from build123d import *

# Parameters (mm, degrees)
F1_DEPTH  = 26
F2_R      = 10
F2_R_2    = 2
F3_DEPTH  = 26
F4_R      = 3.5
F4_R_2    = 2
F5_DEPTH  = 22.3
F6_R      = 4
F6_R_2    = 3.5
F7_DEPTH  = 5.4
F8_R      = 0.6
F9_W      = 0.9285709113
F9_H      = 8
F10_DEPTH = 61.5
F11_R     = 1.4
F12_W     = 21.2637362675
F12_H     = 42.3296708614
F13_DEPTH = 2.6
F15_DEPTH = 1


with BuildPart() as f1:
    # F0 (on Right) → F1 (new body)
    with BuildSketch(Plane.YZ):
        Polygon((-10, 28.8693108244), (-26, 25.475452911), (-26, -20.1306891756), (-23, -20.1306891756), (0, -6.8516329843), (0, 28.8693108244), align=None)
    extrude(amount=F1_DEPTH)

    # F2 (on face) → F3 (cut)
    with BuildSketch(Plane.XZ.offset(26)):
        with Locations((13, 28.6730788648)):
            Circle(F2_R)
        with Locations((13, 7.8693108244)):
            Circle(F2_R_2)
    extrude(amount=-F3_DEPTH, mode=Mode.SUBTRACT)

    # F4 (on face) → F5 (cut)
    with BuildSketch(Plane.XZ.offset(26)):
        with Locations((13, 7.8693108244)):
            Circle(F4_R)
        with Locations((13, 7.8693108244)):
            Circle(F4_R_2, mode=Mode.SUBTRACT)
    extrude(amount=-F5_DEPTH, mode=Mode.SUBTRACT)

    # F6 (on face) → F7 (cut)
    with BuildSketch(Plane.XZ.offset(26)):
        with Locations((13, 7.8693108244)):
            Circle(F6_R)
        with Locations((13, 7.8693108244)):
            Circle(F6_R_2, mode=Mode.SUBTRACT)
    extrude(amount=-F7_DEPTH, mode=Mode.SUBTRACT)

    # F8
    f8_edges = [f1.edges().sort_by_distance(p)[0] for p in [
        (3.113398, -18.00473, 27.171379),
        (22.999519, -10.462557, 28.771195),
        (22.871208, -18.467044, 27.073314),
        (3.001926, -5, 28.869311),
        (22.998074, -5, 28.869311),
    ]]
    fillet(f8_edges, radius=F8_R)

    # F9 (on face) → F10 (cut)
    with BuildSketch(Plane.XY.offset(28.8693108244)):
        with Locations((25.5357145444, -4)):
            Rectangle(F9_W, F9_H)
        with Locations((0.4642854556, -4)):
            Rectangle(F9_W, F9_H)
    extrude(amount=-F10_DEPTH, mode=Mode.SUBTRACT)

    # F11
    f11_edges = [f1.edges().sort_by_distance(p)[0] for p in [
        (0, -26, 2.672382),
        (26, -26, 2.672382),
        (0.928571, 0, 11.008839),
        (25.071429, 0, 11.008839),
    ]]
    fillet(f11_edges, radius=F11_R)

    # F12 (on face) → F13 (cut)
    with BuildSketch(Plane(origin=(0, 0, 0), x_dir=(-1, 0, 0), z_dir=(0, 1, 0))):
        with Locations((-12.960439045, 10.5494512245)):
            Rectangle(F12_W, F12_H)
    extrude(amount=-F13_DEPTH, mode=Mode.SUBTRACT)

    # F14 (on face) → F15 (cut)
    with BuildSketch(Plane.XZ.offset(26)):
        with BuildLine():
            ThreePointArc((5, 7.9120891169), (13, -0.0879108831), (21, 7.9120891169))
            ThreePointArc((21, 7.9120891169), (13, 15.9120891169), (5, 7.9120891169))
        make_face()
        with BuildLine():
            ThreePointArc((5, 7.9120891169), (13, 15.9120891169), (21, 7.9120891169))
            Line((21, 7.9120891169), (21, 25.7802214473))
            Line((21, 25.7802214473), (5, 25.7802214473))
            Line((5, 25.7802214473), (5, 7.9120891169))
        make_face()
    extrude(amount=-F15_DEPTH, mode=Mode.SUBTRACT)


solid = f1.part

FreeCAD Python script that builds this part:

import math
import FreeCAD as App
import Part
import Sketcher
Q = App.Units.Quantity


def edges_at(feature, points):
    """Names of the edges that pass closest to the given points."""
    edges = feature.Shape.Edges
    near = lambda p: min(range(len(edges)), key=lambda i: edges[i].distToShape(Part.Vertex(*p))[0])
    return sorted({f"Edge{near(p) + 1}" for p in points})


def add_polygon(sketch, points):
    """Adds a closed chain of lines whose ends are joined by coincident constraints."""
    first, n = sketch.GeometryCount, len(points)
    for a, b in zip(points, points[1:] + points[:1]):
        sketch.addGeometry(Part.LineSegment(App.Vector(*a, 0), App.Vector(*b, 0)), False)
    for i in range(n):
        sketch.addConstraint(Sketcher.Constraint("Coincident", first + i, 2, first + (i + 1) % n, 1))

doc = App.newDocument("Part")
body = doc.addObject("PartDesign::Body", "Body")

# Sketch on YZ plane
sketch1 = body.newObject("Sketcher::SketchObject", "Sketch")
sketch1.AttachmentSupport = (doc.getObject("YZ_Plane"), [""])
sketch1.MapMode = "FlatFace"
add_polygon(sketch1, [(-10, 28.9), (-26, 25.5), (-26, -20.1), (-23, -20.1), (0, -6.9), (0, 28.9)])  # lines 0-5
sketch1.addConstraint([
    Sketcher.Constraint("Vertical", 1),
    Sketcher.Constraint("Horizontal", 2),
    Sketcher.Constraint("Vertical", 4),
    Sketcher.Constraint("Horizontal", 5),
    Sketcher.Constraint("PointOnObject", 3, 2, -2),
    Sketcher.Constraint("DistanceX", 2, 1, 2, 2, 3.0),
    Sketcher.Constraint("DistanceX", 5, 2, 5, 1, 10.0),
    Sketcher.Constraint("Angle", 3, Q("30 deg")),
    Sketcher.Constraint("DistanceX", 0, 2, -1, 1, 26.0),
    Sketcher.Constraint("DistanceY", 2, 2, 4, 2, 49.0),
    Sketcher.Constraint("DistanceY", 1, 2, 1, 1, 45.606142),
    Sketcher.Constraint("DistanceY", 1, 2, -1, 1, 20.130689),
])
pad1 = body.newObject("PartDesign::Pad", "Pad")
pad1.Profile = sketch1
pad1.Length = 26

# Sketch on XZ plane
sketch2 = body.newObject("Sketcher::SketchObject", "Sketch001")
sketch2.AttachmentSupport = (doc.getObject("XZ_Plane"), [""])
sketch2.MapMode = "FlatFace"
sketch2.AttachmentOffset = App.Placement(App.Vector(0, 0, 26), App.Rotation())
sketch2.addGeometry([
    Part.Circle(App.Vector(13, 28.7, 0), App.Vector(0, 0, 1), 10),
    Part.Circle(App.Vector(13, 7.9, 0), App.Vector(0, 0, 1), 2),
], False)
sketch2.addConstraint([
    Sketcher.Constraint("Vertical", 0, 3, 1, 3),
    Sketcher.Constraint("Diameter", 0, 20.0),
    Sketcher.Constraint("Diameter", 1, 4.0),
    Sketcher.Constraint("DistanceX", -1, 1, 0, 3, 13.0),
    Sketcher.Constraint("DistanceY", -1, 1, 0, 3, 28.673079),
    Sketcher.Constraint("DistanceY", -1, 1, 1, 3, 7.869311),
])
pocket1 = body.newObject("PartDesign::Pocket", "Pocket")
pocket1.Profile = sketch2
pocket1.Length = 26

# Sketch on XZ plane
sketch3 = body.newObject("Sketcher::SketchObject", "Sketch002")
sketch3.AttachmentSupport = (doc.getObject("XZ_Plane"), [""])
sketch3.MapMode = "FlatFace"
sketch3.AttachmentOffset = App.Placement(App.Vector(0, 0, 26), App.Rotation())
sketch3.addGeometry([
    Part.Circle(App.Vector(13, 7.9, 0), App.Vector(0, 0, 1), 3.5),
    Part.Circle(App.Vector(13, 7.9, 0), App.Vector(0, 0, 1), 2),
], False)
sketch3.addConstraint([
    Sketcher.Constraint("Coincident", 1, 3, 0, 3),
    Sketcher.Constraint("Diameter", 0, 7.0),
    Sketcher.Constraint("Diameter", 1, 4.0),
    Sketcher.Constraint("DistanceX", -1, 1, 0, 3, 13.0),
    Sketcher.Constraint("DistanceY", -1, 1, 0, 3, 7.869311),
])
pocket2 = body.newObject("PartDesign::Pocket", "Pocket001")
pocket2.Profile = sketch3
pocket2.Length = 22.3

# Sketch on XZ plane
sketch4 = body.newObject("Sketcher::SketchObject", "Sketch003")
sketch4.AttachmentSupport = (doc.getObject("XZ_Plane"), [""])
sketch4.MapMode = "FlatFace"
sketch4.AttachmentOffset = App.Placement(App.Vector(0, 0, 26), App.Rotation())
sketch4.addGeometry([
    Part.Circle(App.Vector(13, 7.9, 0), App.Vector(0, 0, 1), 4),
    Part.Circle(App.Vector(13, 7.9, 0), App.Vector(0, 0, 1), 3.5),
], False)
sketch4.addConstraint([
    Sketcher.Constraint("Coincident", 1, 3, 0, 3),
    Sketcher.Constraint("Diameter", 0, 8.0),
    Sketcher.Constraint("Diameter", 1, 7.0),
    Sketcher.Constraint("DistanceX", -1, 1, 0, 3, 13.0),
    Sketcher.Constraint("DistanceY", -1, 1, 0, 3, 7.869311),
])
pocket3 = body.newObject("PartDesign::Pocket", "Pocket002")
pocket3.Profile = sketch4
pocket3.Length = 5.4
doc.recompute()

fillet = body.newObject("PartDesign::Fillet", "Fillet")
fillet.Base = (pocket3, edges_at(pocket3, [
    (3.113, -18.005, 27.171),
    (23, -10.463, 28.771),
    (22.871, -18.467, 27.073),
    (3.002, -5, 28.869),
    (22.998, -5, 28.869),
]))
fillet.Radius = 0.6

# Sketch on XY plane
sketch5 = body.newObject("Sketcher::SketchObject", "Sketch004")
sketch5.AttachmentSupport = (doc.getObject("XY_Plane"), [""])
sketch5.MapMode = "FlatFace"
sketch5.AttachmentOffset = App.Placement(App.Vector(0, 0, 28.869311), App.Rotation())
add_polygon(sketch5, [(25.1, 0), (25.1, -8), (26, -8), (26, 0)])  # lines 0-3
add_polygon(sketch5, [(0, 0), (0, -8), (0.9, -8), (0.9, 0)])  # lines 4-7
sketch5.addConstraint([
    Sketcher.Constraint("Vertical", 0),
    Sketcher.Constraint("Horizontal", 1),
    Sketcher.Constraint("Vertical", 2),
    Sketcher.Constraint("Horizontal", 3),
    Sketcher.Constraint("Vertical", 4),
    Sketcher.Constraint("Horizontal", 5),
    Sketcher.Constraint("Vertical", 6),
    Sketcher.Constraint("Horizontal", 7),
    Sketcher.Constraint("Coincident", 7, 2, -1, 1),
    Sketcher.Constraint("PointOnObject", 2, 2, -1),
    Sketcher.Constraint("Horizontal", 1, 2, 4, 2),
    Sketcher.Constraint("Equal", 3, 5),
    Sketcher.Constraint("DistanceY", 0, 2, 0, 1, 8.0),
    Sketcher.Constraint("DistanceX", -1, 1, 1, 2, 26.0),
    Sketcher.Constraint("DistanceX", 1, 1, 1, 2, 0.928571),
])
pocket4 = body.newObject("PartDesign::Pocket", "Pocket003")
pocket4.Profile = sketch5
pocket4.Length = 61.5
doc.recompute()

fillet2 = body.newObject("PartDesign::Fillet", "Fillet001")
fillet2.Base = (pocket4, edges_at(pocket4, [
    (0, -26, 2.672),
    (26, -26, 2.672),
    (0.929, 0, 11.009),
    (25.071, 0, 11.009),
]))
fillet2.Radius = 1.4

# Sketch on XZ plane
sketch6 = body.newObject("Sketcher::SketchObject", "Sketch005")
sketch6.AttachmentSupport = (doc.getObject("XZ_Plane"), [""])
sketch6.MapMode = "FlatFace"
add_polygon(sketch6, [(24, 32), (24, -11), (2, -11), (2, 32)])  # lines 0-3
sketch6.addConstraint([
    Sketcher.Constraint("Vertical", 0),
    Sketcher.Constraint("Horizontal", 1),
    Sketcher.Constraint("Vertical", 2),
    Sketcher.Constraint("Horizontal", 3),
    Sketcher.Constraint("DistanceY", 0, 2, 0, 1, 42.329671),
    Sketcher.Constraint("DistanceX", 1, 2, 1, 1, 21.263736),
    Sketcher.Constraint("DistanceX", -1, 1, 1, 2, 2.328571),
    Sketcher.Constraint("DistanceY", 0, 2, -1, 1, 10.615384),
])
pocket5 = body.newObject("PartDesign::Pocket", "Pocket004")
pocket5.Profile = sketch6
pocket5.Length = 2.6
pocket5.Reversed = True

# Sketch on XZ plane
sketch7 = body.newObject("Sketcher::SketchObject", "Sketch006")
sketch7.AttachmentSupport = (doc.getObject("XZ_Plane"), [""])
sketch7.MapMode = "FlatFace"
sketch7.AttachmentOffset = App.Placement(App.Vector(0, 0, 26), App.Rotation())
sketch7.addGeometry([
    Part.ArcOfCircle(Part.Circle(App.Vector(13, 8, 0), App.Vector(0, 0, 1), 8), math.radians(180), math.radians(360)),
    Part.LineSegment(App.Vector(21, 8, 0), App.Vector(21, 26, 0)),
    Part.LineSegment(App.Vector(21, 26, 0), App.Vector(5, 26, 0)),
    Part.LineSegment(App.Vector(5, 26, 0), App.Vector(5, 8, 0)),
], False)
sketch7.addConstraint([
    Sketcher.Constraint("Tangent", 0, 2, 1, 1),
    Sketcher.Constraint("Coincident", 1, 2, 2, 1),
    Sketcher.Constraint("Coincident", 2, 2, 3, 1),
    Sketcher.Constraint("Tangent", 3, 2, 0, 1),
    Sketcher.Constraint("Vertical", 1),
    Sketcher.Constraint("Horizontal", 2),
    Sketcher.Constraint("Vertical", 3),
    Sketcher.Constraint("Radius", 0, 8.0),
    Sketcher.Constraint("DistanceX", -1, 1, 0, 3, 13.0),
    Sketcher.Constraint("DistanceY", 1, 1, 1, 2, 17.868132),
    Sketcher.Constraint("DistanceY", -1, 1, 0, 3, 7.912089),
])
pocket6 = body.newObject("PartDesign::Pocket", "Pocket005")
pocket6.Profile = sketch7
pocket6.Length = 1

doc.recompute()
